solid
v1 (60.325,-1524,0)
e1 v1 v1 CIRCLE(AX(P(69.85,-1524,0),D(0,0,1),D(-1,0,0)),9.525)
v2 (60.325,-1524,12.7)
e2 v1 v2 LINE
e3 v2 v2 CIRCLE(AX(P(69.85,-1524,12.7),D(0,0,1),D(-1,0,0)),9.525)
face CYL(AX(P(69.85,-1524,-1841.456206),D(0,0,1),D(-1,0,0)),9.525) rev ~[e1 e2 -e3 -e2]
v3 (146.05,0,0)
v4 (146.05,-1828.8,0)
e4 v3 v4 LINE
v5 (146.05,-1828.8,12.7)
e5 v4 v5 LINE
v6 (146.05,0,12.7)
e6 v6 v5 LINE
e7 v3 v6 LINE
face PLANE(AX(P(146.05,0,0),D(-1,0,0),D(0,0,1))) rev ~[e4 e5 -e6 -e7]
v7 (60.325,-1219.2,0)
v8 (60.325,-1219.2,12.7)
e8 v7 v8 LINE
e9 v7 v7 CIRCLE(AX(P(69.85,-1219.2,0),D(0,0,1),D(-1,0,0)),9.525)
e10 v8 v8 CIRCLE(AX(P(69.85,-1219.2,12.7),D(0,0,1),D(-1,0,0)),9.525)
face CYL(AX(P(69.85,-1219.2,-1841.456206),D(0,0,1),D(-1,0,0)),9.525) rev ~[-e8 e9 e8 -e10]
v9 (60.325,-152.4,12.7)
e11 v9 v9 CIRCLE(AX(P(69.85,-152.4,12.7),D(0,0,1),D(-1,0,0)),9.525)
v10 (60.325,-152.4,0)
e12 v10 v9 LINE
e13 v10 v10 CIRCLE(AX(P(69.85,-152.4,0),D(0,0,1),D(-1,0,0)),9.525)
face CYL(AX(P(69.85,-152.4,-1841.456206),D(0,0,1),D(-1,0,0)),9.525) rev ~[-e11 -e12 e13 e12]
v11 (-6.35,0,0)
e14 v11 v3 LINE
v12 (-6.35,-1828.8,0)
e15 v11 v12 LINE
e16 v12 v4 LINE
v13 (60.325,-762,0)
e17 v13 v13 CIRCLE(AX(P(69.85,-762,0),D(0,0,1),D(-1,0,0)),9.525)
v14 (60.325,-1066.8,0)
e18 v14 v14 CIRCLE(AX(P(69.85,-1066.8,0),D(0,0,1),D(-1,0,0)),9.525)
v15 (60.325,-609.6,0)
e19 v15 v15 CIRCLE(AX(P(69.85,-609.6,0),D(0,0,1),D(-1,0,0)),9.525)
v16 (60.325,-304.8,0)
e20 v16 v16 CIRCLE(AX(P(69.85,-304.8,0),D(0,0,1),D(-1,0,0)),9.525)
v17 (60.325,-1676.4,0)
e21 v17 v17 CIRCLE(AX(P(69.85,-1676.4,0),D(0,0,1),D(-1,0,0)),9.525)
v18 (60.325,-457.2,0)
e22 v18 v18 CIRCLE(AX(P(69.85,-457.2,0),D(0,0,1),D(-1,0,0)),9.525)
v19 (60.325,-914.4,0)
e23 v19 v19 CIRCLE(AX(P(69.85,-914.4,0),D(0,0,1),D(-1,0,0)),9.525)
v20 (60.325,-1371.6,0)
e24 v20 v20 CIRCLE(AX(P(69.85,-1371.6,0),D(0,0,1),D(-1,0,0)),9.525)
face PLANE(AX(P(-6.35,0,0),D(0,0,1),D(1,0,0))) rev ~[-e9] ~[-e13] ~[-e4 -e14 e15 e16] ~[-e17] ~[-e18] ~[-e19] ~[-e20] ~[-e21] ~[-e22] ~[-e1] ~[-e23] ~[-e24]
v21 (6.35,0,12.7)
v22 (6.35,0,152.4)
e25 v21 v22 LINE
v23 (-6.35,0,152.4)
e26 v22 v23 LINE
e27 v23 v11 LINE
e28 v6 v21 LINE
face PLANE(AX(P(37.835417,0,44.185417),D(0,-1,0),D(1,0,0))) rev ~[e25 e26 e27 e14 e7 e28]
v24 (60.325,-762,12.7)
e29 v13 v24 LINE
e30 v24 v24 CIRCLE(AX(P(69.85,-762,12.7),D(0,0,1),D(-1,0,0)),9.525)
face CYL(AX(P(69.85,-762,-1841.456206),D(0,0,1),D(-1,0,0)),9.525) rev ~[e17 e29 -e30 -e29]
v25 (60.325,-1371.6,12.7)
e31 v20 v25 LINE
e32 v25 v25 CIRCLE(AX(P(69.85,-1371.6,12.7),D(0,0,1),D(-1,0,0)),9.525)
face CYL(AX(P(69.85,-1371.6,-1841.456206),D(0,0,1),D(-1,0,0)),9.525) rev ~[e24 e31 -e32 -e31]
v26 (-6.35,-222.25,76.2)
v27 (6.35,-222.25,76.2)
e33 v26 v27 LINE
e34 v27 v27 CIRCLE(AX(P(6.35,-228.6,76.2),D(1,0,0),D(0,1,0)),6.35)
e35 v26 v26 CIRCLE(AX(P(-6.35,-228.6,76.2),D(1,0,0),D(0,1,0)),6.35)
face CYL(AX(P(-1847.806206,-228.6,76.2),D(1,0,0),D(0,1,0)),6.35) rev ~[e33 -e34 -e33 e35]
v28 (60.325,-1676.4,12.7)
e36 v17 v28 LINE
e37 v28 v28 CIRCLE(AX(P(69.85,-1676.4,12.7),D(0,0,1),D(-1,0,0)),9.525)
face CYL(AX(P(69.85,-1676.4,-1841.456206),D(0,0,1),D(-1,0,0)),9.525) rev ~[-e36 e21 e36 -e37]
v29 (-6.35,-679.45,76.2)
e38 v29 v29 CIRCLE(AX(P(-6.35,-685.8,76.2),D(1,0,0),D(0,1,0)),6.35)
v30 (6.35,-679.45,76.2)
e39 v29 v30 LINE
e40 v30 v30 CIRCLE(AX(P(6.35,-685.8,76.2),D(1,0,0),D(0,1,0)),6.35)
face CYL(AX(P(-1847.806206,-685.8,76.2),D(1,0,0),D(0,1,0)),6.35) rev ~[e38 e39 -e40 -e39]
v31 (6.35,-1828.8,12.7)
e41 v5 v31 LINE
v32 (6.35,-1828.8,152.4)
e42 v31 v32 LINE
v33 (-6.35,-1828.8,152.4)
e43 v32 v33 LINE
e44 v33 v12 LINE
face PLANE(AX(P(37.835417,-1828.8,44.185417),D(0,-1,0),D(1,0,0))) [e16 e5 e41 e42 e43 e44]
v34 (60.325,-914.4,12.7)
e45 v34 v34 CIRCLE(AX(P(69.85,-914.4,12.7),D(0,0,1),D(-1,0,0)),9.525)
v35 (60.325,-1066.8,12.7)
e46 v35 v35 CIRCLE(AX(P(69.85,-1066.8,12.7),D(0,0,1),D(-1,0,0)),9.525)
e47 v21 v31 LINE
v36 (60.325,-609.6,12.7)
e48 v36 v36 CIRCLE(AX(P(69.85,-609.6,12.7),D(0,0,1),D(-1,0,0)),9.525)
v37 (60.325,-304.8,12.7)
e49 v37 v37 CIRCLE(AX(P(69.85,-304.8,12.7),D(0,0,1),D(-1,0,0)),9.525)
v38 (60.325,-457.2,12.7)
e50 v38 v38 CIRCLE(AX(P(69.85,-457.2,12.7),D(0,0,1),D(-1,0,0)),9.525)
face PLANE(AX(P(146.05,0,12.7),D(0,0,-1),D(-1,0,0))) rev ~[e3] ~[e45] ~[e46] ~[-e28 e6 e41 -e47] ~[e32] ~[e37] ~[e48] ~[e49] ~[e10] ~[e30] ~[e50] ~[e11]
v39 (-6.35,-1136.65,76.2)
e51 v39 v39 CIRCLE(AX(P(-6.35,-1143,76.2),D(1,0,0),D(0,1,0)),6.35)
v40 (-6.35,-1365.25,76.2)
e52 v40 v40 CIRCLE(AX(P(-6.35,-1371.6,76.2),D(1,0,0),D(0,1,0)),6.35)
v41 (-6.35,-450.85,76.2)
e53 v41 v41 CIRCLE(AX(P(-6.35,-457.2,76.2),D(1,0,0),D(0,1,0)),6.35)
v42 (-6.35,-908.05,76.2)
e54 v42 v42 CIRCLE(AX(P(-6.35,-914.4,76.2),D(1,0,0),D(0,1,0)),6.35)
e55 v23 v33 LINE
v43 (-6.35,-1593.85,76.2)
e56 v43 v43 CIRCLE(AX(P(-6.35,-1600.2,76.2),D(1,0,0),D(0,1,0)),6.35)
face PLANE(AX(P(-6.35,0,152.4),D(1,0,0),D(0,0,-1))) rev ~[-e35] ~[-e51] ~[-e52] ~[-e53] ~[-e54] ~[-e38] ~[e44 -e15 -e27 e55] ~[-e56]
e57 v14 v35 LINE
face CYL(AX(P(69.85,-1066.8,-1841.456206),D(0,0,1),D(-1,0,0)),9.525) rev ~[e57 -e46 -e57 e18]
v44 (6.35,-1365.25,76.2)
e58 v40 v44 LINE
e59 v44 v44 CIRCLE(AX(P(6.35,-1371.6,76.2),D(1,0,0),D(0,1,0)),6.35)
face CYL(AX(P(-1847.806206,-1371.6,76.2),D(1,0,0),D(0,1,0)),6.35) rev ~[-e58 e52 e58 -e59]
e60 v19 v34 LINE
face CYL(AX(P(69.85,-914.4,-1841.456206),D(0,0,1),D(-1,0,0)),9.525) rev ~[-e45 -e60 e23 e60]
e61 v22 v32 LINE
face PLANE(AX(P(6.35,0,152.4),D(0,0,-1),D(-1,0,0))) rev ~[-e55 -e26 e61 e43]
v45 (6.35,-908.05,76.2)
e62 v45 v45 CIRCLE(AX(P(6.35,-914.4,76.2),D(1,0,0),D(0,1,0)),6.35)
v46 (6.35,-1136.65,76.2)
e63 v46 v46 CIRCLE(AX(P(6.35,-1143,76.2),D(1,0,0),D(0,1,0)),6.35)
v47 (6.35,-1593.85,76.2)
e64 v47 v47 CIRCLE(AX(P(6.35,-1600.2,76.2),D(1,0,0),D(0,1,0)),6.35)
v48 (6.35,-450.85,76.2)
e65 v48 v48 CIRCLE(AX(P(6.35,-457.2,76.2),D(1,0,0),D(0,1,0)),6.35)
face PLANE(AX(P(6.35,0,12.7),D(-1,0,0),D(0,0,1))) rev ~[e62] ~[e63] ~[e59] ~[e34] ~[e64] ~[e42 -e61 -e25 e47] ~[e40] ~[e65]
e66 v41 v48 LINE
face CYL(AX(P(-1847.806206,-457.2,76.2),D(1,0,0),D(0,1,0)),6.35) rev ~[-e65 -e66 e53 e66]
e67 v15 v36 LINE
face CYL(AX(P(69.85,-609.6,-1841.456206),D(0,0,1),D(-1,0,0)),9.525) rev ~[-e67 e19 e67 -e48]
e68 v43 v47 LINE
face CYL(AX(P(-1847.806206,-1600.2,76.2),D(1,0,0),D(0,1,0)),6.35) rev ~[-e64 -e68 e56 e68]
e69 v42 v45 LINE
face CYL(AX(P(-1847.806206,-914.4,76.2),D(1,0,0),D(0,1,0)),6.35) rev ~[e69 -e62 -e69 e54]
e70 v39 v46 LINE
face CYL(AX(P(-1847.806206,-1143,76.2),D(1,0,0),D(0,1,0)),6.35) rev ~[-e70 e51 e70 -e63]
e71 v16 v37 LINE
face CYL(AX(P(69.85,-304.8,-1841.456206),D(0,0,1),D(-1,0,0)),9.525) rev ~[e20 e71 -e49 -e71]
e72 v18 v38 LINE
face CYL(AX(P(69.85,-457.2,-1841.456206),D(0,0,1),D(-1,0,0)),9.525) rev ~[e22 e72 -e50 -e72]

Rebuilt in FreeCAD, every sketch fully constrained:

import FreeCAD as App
import Part
import Sketcher
from FreeCAD import Vector
Q = App.Units.Quantity


def add_polygon(sketch, points):
    """Adds a closed chain of lines whose ends are joined by coincident constraints."""
    first, n = sketch.GeometryCount, len(points)
    for a, b in zip(points, points[1:] + points[:1]):
        sketch.addGeometry(Part.LineSegment(App.Vector(*a, 0), App.Vector(*b, 0)), False)
    for i in range(n):
        sketch.addConstraint(Sketcher.Constraint("Coincident", first + i, 2, first + (i + 1) % n, 1))

doc = App.newDocument("Part")
body = doc.addObject("PartDesign::Body", "Body")

sketch1 = doc.addObject("Sketcher::SketchObject", "Sketch")
body.addObject(sketch1)
sketch1.AttachmentSupport = (doc.XZ_Plane, [""])
sketch1.MapMode = "FlatFace"
add_polygon(sketch1, [(6, 152), (-6, 152), (-6, 0), (146, 0), (146, 13), (6, 13)])
sketch1.addConstraint([
    Sketcher.Constraint("Horizontal", 0),
    Sketcher.Constraint("Vertical", 1),
    Sketcher.Constraint("Horizontal", 2),
    Sketcher.Constraint("Vertical", 3),
    Sketcher.Constraint("Horizontal", 4),
    Sketcher.Constraint("Vertical", 5),
    Sketcher.Constraint("PointOnObject", 1, 2, -1),
    Sketcher.Constraint("Equal", 2, 1),
    Sketcher.Constraint("Equal", 0, 3),
    Sketcher.Constraint("DistanceX", 2, 1, 2, 2, Q("6 in")),
    Sketcher.Constraint("DistanceX", 0, 2, 0, 1, Q("0.5 in")),
    Sketcher.Constraint("DistanceX", 0, 2, -1, 1, Q("0.25 in")),
])
pad1 = doc.addObject("PartDesign::Pad", "Pad")
body.addObject(pad1)
pad1.Profile = sketch1
pad1.Length = Q("72 in")

sketch2 = doc.addObject("Sketcher::SketchObject", "Sketch001")
body.addObject(sketch2)
sketch2.AttachmentSupport = (doc.XY_Plane, [""])
sketch2.MapMode = "FlatFace"
sketch2.addGeometry([
    Part.Circle(Vector(70, -1067, 0), Vector(0, 0, 1), 10),
    Part.Circle(Vector(70, -1219, 0), Vector(0, 0, 1), 10),
    Part.Circle(Vector(70, -1372, 0), Vector(0, 0, 1), 10),
    Part.Circle(Vector(70, -1524, 0), Vector(0, 0, 1), 10),
    Part.Circle(Vector(70, -1676, 0), Vector(0, 0, 1), 10),
    Part.Circle(Vector(70, -914, 0), Vector(0, 0, 1), 10),
    Part.Circle(Vector(70, -762, 0), Vector(0, 0, 1), 10),
    Part.Circle(Vector(70, -610, 0), Vector(0, 0, 1), 10),
    Part.Circle(Vector(70, -457, 0), Vector(0, 0, 1), 10),
    Part.Circle(Vector(70, -305, 0), Vector(0, 0, 1), 10),
    Part.Circle(Vector(70, -152, 0), Vector(0, 0, 1), 10),
], False)
sketch2.addConstraint([
    Sketcher.Constraint("Equal", 0, 1),
    Sketcher.Constraint("Equal", 1, 2),
    Sketcher.Constraint("Equal", 2, 3),
    Sketcher.Constraint("Equal", 3, 4),
    Sketcher.Constraint("Equal", 4, 5),
    Sketcher.Constraint("Equal", 5, 6),
    Sketcher.Constraint("Equal", 6, 7),
    Sketcher.Constraint("Equal", 7, 8),
    Sketcher.Constraint("Equal", 8, 9),
    Sketcher.Constraint("Equal", 9, 10),
    Sketcher.Constraint("Vertical", 0, 3, 1, 3),
    Sketcher.Constraint("Vertical", 1, 3, 2, 3),
    Sketcher.Constraint("Vertical", 2, 3, 3, 3),
    Sketcher.Constraint("Vertical", 3, 3, 4, 3),
    Sketcher.Constraint("Vertical", 4, 3, 5, 3),
    Sketcher.Constraint("Vertical", 5, 3, 6, 3),
    Sketcher.Constraint("Vertical", 6, 3, 7, 3),
    Sketcher.Constraint("Vertical", 7, 3, 8, 3),
    Sketcher.Constraint("Vertical", 8, 3, 9, 3),
    Sketcher.Constraint("Vertical", 9, 3, 10, 3),
    Sketcher.Constraint("Diameter", 0, Q("0.75 in")),
    Sketcher.Constraint("DistanceY", 0, 3, -1, 1, Q("42 in")),
    Sketcher.Constraint("DistanceY", 1, 3, -1, 1, Q("48 in")),
    Sketcher.Constraint("DistanceY", 2, 3, -1, 1, Q("54 in")),
    Sketcher.Constraint("DistanceY", 3, 3, -1, 1, Q("60 in")),
    Sketcher.Constraint("DistanceY", 4, 3, -1, 1, Q("66 in")),
    Sketcher.Constraint("DistanceY", 5, 3, -1, 1, Q("36 in")),
    Sketcher.Constraint("DistanceY", 6, 3, -1, 1, Q("30 in")),
    Sketcher.Constraint("DistanceY", 7, 3, -1, 1, Q("24 in")),
    Sketcher.Constraint("DistanceY", 8, 3, -1, 1, Q("18 in")),
    Sketcher.Constraint("DistanceY", 9, 3, -1, 1, Q("12 in")),
    Sketcher.Constraint("DistanceY", 10, 3, -1, 1, Q("6 in")),
    Sketcher.Constraint("DistanceX", -1, 1, 0, 3, Q("2.75 in")),
])
doc.recompute()
hole = doc.addObject("PartDesign::Hole", "Hole")
body.addObject(hole)
hole.Profile = sketch2
hole.ThreadType = "None"
hole.Diameter = Q("0.75 in")
hole.DepthType = "ThroughAll"
hole.Reversed = True

sketch3 = doc.addObject("Sketcher::SketchObject", "Sketch002")
body.addObject(sketch3)
sketch3.AttachmentSupport = (doc.YZ_Plane, [""])
sketch3.MapMode = "FlatFace"
sketch3.AttachmentOffset = App.Placement(Vector(0, 0, -0.25 * 25.4), App.Rotation())
sketch3.addGeometry([
    Part.Circle(Vector(-1600, 76, 0), Vector(0, 0, 1), 6),
    Part.Circle(Vector(-1372, 76, 0), Vector(0, 0, 1), 6),
    Part.Circle(Vector(-1143, 76, 0), Vector(0, 0, 1), 6),
    Part.Circle(Vector(-914, 76, 0), Vector(0, 0, 1), 6),
    Part.Circle(Vector(-686, 76, 0), Vector(0, 0, 1), 6),
    Part.Circle(Vector(-457, 76, 0), Vector(0, 0, 1), 6),
    Part.Circle(Vector(-229, 76, 0), Vector(0, 0, 1), 6),
], False)
sketch3.addConstraint([
    Sketcher.Constraint("Equal", 0, 1),
    Sketcher.Constraint("Equal", 1, 2),
    Sketcher.Constraint("Equal", 2, 3),
    Sketcher.Constraint("Equal", 3, 4),
    Sketcher.Constraint("Equal", 4, 5),
    Sketcher.Constraint("Equal", 5, 6),
    Sketcher.Constraint("Horizontal", 0, 3, 1, 3),
    Sketcher.Constraint("Horizontal", 1, 3, 2, 3),
    Sketcher.Constraint("Horizontal", 2, 3, 3, 3),
    Sketcher.Constraint("Horizontal", 3, 3, 4, 3),
    Sketcher.Constraint("Horizontal", 4, 3, 5, 3),
    Sketcher.Constraint("Horizontal", 5, 3, 6, 3),
    Sketcher.Constraint("Diameter", 0, Q("0.5 in")),
    Sketcher.Constraint("DistanceX", 0, 3, -1, 1, Q("63 in")),
    Sketcher.Constraint("DistanceY", -1, 1, 0, 3, Q("3 in")),
    Sketcher.Constraint("DistanceX", 1, 3, -1, 1, Q("54 in")),
    Sketcher.Constraint("DistanceX", 2, 3, -1, 1, Q("45 in")),
    Sketcher.Constraint("DistanceX", 3, 3, -1, 1, Q("36 in")),
    Sketcher.Constraint("DistanceX", 4, 3, -1, 1, Q("27 in")),
    Sketcher.Constraint("DistanceX", 5, 3, -1, 1, Q("18 in")),
    Sketcher.Constraint("DistanceX", 6, 3, -1, 1, Q("9 in")),
])
doc.recompute()
hole2 = doc.addObject("PartDesign::Hole", "Hole001")
body.addObject(hole2)
hole2.Profile = sketch3
hole2.ThreadType = "None"
hole2.Diameter = Q("0.5 in")
hole2.DepthType = "ThroughAll"
hole2.Reversed = True

doc.recompute()
